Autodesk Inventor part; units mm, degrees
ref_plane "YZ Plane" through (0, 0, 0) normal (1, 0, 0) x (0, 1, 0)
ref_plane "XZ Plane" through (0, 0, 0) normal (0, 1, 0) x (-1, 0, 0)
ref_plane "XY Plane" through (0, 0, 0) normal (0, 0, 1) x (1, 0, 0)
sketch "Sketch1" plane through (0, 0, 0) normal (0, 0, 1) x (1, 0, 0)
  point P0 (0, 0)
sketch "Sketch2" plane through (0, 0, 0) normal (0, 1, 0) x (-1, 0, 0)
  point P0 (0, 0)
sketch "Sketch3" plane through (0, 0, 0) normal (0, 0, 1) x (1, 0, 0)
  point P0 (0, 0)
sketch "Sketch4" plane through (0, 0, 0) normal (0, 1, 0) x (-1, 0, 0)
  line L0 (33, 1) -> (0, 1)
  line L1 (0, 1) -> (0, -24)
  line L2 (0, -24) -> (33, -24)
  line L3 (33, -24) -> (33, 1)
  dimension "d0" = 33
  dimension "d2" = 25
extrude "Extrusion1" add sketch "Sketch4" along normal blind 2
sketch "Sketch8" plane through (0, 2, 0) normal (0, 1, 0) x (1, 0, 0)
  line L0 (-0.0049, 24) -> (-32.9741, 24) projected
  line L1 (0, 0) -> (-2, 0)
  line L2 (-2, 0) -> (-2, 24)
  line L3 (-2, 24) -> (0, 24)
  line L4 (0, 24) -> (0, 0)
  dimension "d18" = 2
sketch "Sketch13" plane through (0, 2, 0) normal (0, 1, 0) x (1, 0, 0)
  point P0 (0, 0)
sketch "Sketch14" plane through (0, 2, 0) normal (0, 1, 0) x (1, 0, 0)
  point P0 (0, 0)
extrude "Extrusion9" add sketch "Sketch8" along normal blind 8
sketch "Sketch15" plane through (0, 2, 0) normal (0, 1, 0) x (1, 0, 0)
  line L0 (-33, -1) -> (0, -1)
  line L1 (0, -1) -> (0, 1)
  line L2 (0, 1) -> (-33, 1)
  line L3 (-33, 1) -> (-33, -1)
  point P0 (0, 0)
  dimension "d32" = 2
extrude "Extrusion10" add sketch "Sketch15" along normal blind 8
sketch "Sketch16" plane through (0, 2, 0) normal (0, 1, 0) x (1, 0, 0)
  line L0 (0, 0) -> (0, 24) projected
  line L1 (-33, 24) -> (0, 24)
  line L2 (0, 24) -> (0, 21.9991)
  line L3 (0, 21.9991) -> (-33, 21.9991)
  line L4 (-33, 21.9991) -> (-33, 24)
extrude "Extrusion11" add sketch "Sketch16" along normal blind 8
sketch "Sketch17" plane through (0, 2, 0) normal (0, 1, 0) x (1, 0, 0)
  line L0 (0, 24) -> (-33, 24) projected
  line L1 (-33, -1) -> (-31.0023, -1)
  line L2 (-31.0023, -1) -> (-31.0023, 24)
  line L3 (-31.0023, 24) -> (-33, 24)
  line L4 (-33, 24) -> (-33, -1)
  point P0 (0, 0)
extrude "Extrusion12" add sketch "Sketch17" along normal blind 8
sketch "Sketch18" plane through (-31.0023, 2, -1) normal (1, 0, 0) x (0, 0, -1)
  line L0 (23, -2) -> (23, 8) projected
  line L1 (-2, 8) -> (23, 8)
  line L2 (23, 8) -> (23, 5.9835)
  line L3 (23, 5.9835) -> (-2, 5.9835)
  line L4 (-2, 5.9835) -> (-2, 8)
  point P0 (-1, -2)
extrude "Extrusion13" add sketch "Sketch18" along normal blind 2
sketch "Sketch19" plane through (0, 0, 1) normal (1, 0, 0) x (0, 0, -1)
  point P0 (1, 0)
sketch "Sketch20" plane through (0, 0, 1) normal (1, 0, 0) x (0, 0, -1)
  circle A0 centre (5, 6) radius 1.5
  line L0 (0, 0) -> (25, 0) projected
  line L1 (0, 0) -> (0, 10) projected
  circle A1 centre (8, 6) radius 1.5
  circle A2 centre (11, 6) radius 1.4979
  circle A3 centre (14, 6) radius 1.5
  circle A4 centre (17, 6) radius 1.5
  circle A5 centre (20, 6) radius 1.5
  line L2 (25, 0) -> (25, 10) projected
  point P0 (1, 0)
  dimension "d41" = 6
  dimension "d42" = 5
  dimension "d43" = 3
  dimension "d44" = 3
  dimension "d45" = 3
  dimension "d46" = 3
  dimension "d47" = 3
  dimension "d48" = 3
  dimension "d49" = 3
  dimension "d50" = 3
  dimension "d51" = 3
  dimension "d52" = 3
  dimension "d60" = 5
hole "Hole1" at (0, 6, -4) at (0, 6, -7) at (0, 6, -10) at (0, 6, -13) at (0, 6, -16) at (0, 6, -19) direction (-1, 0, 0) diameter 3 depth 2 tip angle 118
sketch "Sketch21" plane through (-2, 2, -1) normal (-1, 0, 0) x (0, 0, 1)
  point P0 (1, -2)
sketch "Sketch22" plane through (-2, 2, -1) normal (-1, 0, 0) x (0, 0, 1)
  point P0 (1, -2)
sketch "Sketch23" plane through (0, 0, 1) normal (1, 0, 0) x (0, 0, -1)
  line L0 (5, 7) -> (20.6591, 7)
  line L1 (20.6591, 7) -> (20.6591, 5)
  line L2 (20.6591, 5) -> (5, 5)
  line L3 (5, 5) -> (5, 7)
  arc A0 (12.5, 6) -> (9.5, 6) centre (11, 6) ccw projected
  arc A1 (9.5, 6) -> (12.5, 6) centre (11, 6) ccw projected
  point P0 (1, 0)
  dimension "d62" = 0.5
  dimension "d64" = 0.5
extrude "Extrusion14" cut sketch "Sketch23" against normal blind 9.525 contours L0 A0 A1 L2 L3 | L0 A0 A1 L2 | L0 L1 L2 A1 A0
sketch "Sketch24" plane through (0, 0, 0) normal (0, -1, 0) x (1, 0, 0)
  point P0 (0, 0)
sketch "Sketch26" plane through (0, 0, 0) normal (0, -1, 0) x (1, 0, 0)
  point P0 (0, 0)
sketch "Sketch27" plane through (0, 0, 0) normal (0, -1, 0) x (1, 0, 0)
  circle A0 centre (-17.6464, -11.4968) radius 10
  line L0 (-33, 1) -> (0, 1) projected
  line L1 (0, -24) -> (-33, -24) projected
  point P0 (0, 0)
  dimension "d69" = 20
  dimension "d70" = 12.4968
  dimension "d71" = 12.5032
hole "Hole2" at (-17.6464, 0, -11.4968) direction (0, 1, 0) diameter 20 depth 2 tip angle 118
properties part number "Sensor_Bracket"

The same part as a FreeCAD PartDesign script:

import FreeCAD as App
import Part
import Sketcher
Q = App.Units.Quantity


def add_polygon(sketch, points):
    """Adds a closed chain of lines whose ends are joined by coincident constraints."""
    first, n = sketch.GeometryCount, len(points)
    for a, b in zip(points, points[1:] + points[:1]):
        sketch.addGeometry(Part.LineSegment(App.Vector(*a, 0), App.Vector(*b, 0)), False)
    for i in range(n):
        sketch.addConstraint(Sketcher.Constraint("Coincident", first + i, 2, first + (i + 1) % n, 1))

doc = App.newDocument("Part")
body = doc.addObject("PartDesign::Body", "Body")

# Sketch on XZ plane
sketch1 = body.newObject("Sketcher::SketchObject", "Sketch")
sketch1.AttachmentSupport = (doc.getObject("XZ_Plane"), [""])
sketch1.MapMode = "FlatFace"
add_polygon(sketch1, [(-33, -24), (-33, 1), (0, 1), (0, -24)])  # lines 0-3
sketch1.addConstraint([
    Sketcher.Constraint("Vertical", 0),
    Sketcher.Constraint("Horizontal", 1),
    Sketcher.Constraint("Vertical", 2),
    Sketcher.Constraint("Horizontal", 3),
    Sketcher.Constraint("PointOnObject", 1, 2, -2),
    Sketcher.Constraint("DistanceX", 1, 1, 1, 2, Q("33 mm")),
    Sketcher.Constraint("DistanceY", 0, 1, 0, 2, Q("25 mm")),
    Sketcher.Constraint("DistanceY", -1, 1, 0, 2, Q("1 mm")),
])
pad1 = body.newObject("PartDesign::Pad", "Pad")
pad1.Profile = sketch1
pad1.Length = 2
pad1.Reversed = True

# Sketch on XZ plane
sketch2 = body.newObject("Sketcher::SketchObject", "Sketch001")
sketch2.AttachmentSupport = (doc.getObject("XZ_Plane"), [""])
sketch2.MapMode = "FlatFace"
sketch2.AttachmentOffset = App.Placement(App.Vector(0, 0, -2), App.Rotation())
add_polygon(sketch2, [(0, -24), (-2, -24), (-2, 0), (0, 0)])  # lines 0-3
sketch2.addConstraint([
    Sketcher.Constraint("Horizontal", 0),
    Sketcher.Constraint("Vertical", 1),
    Sketcher.Constraint("Horizontal", 2),
    Sketcher.Constraint("Vertical", 3),
    Sketcher.Constraint("Coincident", 2, 2, -1, 1),
    Sketcher.Constraint("DistanceX", 0, 2, 0, 1, Q("2 mm")),
    Sketcher.Constraint("DistanceY", 1, 1, 1, 2, Q("24 mm")),
])
pad2 = body.newObject("PartDesign::Pad", "Pad001")
pad2.Profile = sketch2
pad2.Length = 8
pad2.Reversed = True

# Sketch on XZ plane
sketch3 = body.newObject("Sketcher::SketchObject", "Sketch002")
sketch3.AttachmentSupport = (doc.getObject("XZ_Plane"), [""])
sketch3.MapMode = "FlatFace"
sketch3.AttachmentOffset = App.Placement(App.Vector(0, 0, -2), App.Rotation())
add_polygon(sketch3, [(-33, -1), (-33, 1), (0, 1), (0, -1)])  # lines 0-3
sketch3.addConstraint([
    Sketcher.Constraint("Vertical", 0),
    Sketcher.Constraint("Horizontal", 1),
    Sketcher.Constraint("Vertical", 2),
    Sketcher.Constraint("Horizontal", 3),
    Sketcher.Constraint("Symmetric", 1, 2, 2, 2, -1, 1),
    Sketcher.Constraint("DistanceY", 0, 1, 0, 2, Q("2 mm")),
    Sketcher.Constraint("DistanceX", 1, 1, 1, 2, Q("33 mm")),
])
pad3 = body.newObject("PartDesign::Pad", "Pad002")
pad3.Profile = sketch3
pad3.Length = 8
pad3.Reversed = True

# Sketch on XZ plane
sketch4 = body.newObject("Sketcher::SketchObject", "Sketch003")
sketch4.AttachmentSupport = (doc.getObject("XZ_Plane"), [""])
sketch4.MapMode = "FlatFace"
sketch4.AttachmentOffset = App.Placement(App.Vector(0, 0, -2), App.Rotation())
add_polygon(sketch4, [(-33, -22), (0, -22), (0, -24), (-33, -24)])  # lines 0-3
sketch4.addConstraint([
    Sketcher.Constraint("Horizontal", 0),
    Sketcher.Constraint("Vertical", 1),
    Sketcher.Constraint("Horizontal", 2),
    Sketcher.Constraint("Vertical", 3),
    Sketcher.Constraint("PointOnObject", 0, 2, -2),
    Sketcher.Constraint("DistanceX", 0, 1, 0, 2, Q("33 mm")),
    Sketcher.Constraint("DistanceY", 1, 2, -1, 1, Q("24 mm")),
    Sketcher.Constraint("DistanceY", 1, 2, 1, 1, Q("2.001 mm")),
])
pad4 = body.newObject("PartDesign::Pad", "Pad003")
pad4.Profile = sketch4
pad4.Length = 8
pad4.Reversed = True

# Sketch on XZ plane
sketch5 = body.newObject("Sketcher::SketchObject", "Sketch004")
sketch5.AttachmentSupport = (doc.getObject("XZ_Plane"), [""])
sketch5.MapMode = "FlatFace"
sketch5.AttachmentOffset = App.Placement(App.Vector(0, 0, -2), App.Rotation())
add_polygon(sketch5, [(-31, 1), (-31, -24), (-33, -24), (-33, 1)])  # lines 0-3
sketch5.addConstraint([
    Sketcher.Constraint("Vertical", 0),
    Sketcher.Constraint("Horizontal", 1),
    Sketcher.Constraint("Vertical", 2),
    Sketcher.Constraint("Horizontal", 3),
    Sketcher.Constraint("DistanceY", 0, 2, 0, 1, Q("25 mm")),
    Sketcher.Constraint("DistanceY", 0, 2, -1, 1, Q("24 mm")),
    Sketcher.Constraint("DistanceX", 1, 2, -1, 1, Q("33 mm")),
    Sketcher.Constraint("DistanceX", 1, 2, 1, 1, Q("1.9977 mm")),
])
pad5 = body.newObject("PartDesign::Pad", "Pad004")
pad5.Profile = sketch5
pad5.Length = 8
pad5.Reversed = True

# Sketch on YZ plane
sketch6 = body.newObject("Sketcher::SketchObject", "Sketch005")
sketch6.AttachmentSupport = (doc.getObject("YZ_Plane"), [""])
sketch6.MapMode = "FlatFace"
sketch6.AttachmentOffset = App.Placement(App.Vector(0, 0, -31.0023), App.Rotation())
add_polygon(sketch6, [(8, 1), (8, -24), (10, -24), (10, 1)])  # lines 0-3
sketch6.addConstraint([
    Sketcher.Constraint("Vertical", 0),
    Sketcher.Constraint("Horizontal", 1),
    Sketcher.Constraint("Vertical", 2),
    Sketcher.Constraint("Horizontal", 3),
    Sketcher.Constraint("DistanceY", 0, 2, 0, 1, Q("25 mm")),
    Sketcher.Constraint("DistanceY", 0, 2, -1, 1, Q("24 mm")),
    Sketcher.Constraint("DistanceX", -1, 1, 1, 2, Q("10 mm")),
    Sketcher.Constraint("DistanceX", 1, 1, 1, 2, Q("2.0165 mm")),
])
pad6 = body.newObject("PartDesign::Pad", "Pad005")
pad6.Profile = sketch6
pad6.Length = 2

# Sketch on YZ plane
sketch7 = body.newObject("Sketcher::SketchObject", "Sketch006")
sketch7.AttachmentSupport = (doc.getObject("YZ_Plane"), [""])
sketch7.MapMode = "FlatFace"
sketch7.addGeometry([
    Part.Circle(App.Vector(6, -4, 0), App.Vector(0, 0, 1), 1.5),  # 0
    Part.Circle(App.Vector(6, -7, 0), App.Vector(0, 0, 1), 1.5),  # 1
    Part.Circle(App.Vector(6, -10, 0), App.Vector(0, 0, 1), 1.5),  # 2
    Part.Circle(App.Vector(6, -13, 0), App.Vector(0, 0, 1), 1.5),  # 3
    Part.Circle(App.Vector(6, -16, 0), App.Vector(0, 0, 1), 1.5),  # 4
    Part.Circle(App.Vector(6, -19, 0), App.Vector(0, 0, 1), 1.5),  # 5
], False)
sketch7.addConstraint([
    Sketcher.Constraint("Equal", 0, 1),
    Sketcher.Constraint("Equal", 1, 2),
    Sketcher.Constraint("Equal", 2, 3),
    Sketcher.Constraint("Equal", 3, 4),
    Sketcher.Constraint("Equal", 4, 5),
    Sketcher.Constraint("Vertical", 0, 3, 1, 3),
    Sketcher.Constraint("Vertical", 1, 3, 2, 3),
    Sketcher.Constraint("Vertical", 2, 3, 3, 3),
    Sketcher.Constraint("Vertical", 3, 3, 4, 3),
    Sketcher.Constraint("Vertical", 4, 3, 5, 3),
    Sketcher.Constraint("Diameter", 0, Q("3 mm")),
    Sketcher.Constraint("DistanceX", -1, 1, 0, 3, Q("6 mm")),
    Sketcher.Constraint("DistanceY", 0, 3, -1, 1, Q("4 mm")),
    Sketcher.Constraint("DistanceY", 1, 3, -1, 1, Q("7 mm")),
    Sketcher.Constraint("DistanceY", 2, 3, -1, 1, Q("10 mm")),
    Sketcher.Constraint("DistanceY", 3, 3, -1, 1, Q("13 mm")),
    Sketcher.Constraint("DistanceY", 4, 3, -1, 1, Q("16 mm")),
    Sketcher.Constraint("DistanceY", 5, 3, -1, 1, Q("19 mm")),
])
doc.recompute()
hole = body.newObject("PartDesign::Hole", "Hole")
hole.Profile = sketch7
hole.ThreadType = "None"
hole.Diameter = 3
hole.DepthType = "Dimension"
hole.Depth = 2
hole.DrillPoint = "Angled"
hole.DrillPointAngle = 118

# Sketch on YZ plane
sketch8 = body.newObject("Sketcher::SketchObject", "Sketch007")
sketch8.AttachmentSupport = (doc.getObject("YZ_Plane"), [""])
sketch8.MapMode = "FlatFace"
add_polygon(sketch8, [(7, -4), (5, -4), (5, -19.7), (7, -19.7)])  # lines 0-3
sketch8.addConstraint([
    Sketcher.Constraint("Horizontal", 0),
    Sketcher.Constraint("Vertical", 1),
    Sketcher.Constraint("Horizontal", 2),
    Sketcher.Constraint("Vertical", 3),
    Sketcher.Constraint("DistanceX", 0, 2, 0, 1, Q("2 mm")),
    Sketcher.Constraint("DistanceX", -1, 1, 0, 2, Q("5 mm")),
    Sketcher.Constraint("DistanceY", 0, 2, -1, 1, Q("4 mm")),
    Sketcher.Constraint("DistanceY", 1, 2, 1, 1, Q("15.659 mm")),
])
pocket1 = body.newObject("PartDesign::Pocket", "Pocket")
pocket1.Profile = sketch8
pocket1.Length = 9.525

# Sketch on XZ plane
sketch9 = body.newObject("Sketcher::SketchObject", "Sketch008")
sketch9.AttachmentSupport = (doc.getObject("XZ_Plane"), [""])
sketch9.MapMode = "FlatFace"
sketch9.addGeometry(Part.Circle(App.Vector(-18, -11, 0), App.Vector(0, 0, 1), 10), False)
sketch9.addConstraint([
    Sketcher.Constraint("Diameter", 0, Q("20 mm")),
    Sketcher.Constraint("DistanceX", 0, 3, -1, 1, Q("17.6464 mm")),
    Sketcher.Constraint("DistanceY", 0, 3, -1, 1, Q("11.4968 mm")),
])
doc.recompute()
hole2 = body.newObject("PartDesign::Hole", "Hole001")
hole2.Profile = sketch9
hole2.ThreadType = "None"
hole2.Diameter = 20
hole2.DepthType = "Dimension"
hole2.Depth = 2
hole2.DrillPoint = "Angled"
hole2.DrillPointAngle = 118

doc.recompute()
